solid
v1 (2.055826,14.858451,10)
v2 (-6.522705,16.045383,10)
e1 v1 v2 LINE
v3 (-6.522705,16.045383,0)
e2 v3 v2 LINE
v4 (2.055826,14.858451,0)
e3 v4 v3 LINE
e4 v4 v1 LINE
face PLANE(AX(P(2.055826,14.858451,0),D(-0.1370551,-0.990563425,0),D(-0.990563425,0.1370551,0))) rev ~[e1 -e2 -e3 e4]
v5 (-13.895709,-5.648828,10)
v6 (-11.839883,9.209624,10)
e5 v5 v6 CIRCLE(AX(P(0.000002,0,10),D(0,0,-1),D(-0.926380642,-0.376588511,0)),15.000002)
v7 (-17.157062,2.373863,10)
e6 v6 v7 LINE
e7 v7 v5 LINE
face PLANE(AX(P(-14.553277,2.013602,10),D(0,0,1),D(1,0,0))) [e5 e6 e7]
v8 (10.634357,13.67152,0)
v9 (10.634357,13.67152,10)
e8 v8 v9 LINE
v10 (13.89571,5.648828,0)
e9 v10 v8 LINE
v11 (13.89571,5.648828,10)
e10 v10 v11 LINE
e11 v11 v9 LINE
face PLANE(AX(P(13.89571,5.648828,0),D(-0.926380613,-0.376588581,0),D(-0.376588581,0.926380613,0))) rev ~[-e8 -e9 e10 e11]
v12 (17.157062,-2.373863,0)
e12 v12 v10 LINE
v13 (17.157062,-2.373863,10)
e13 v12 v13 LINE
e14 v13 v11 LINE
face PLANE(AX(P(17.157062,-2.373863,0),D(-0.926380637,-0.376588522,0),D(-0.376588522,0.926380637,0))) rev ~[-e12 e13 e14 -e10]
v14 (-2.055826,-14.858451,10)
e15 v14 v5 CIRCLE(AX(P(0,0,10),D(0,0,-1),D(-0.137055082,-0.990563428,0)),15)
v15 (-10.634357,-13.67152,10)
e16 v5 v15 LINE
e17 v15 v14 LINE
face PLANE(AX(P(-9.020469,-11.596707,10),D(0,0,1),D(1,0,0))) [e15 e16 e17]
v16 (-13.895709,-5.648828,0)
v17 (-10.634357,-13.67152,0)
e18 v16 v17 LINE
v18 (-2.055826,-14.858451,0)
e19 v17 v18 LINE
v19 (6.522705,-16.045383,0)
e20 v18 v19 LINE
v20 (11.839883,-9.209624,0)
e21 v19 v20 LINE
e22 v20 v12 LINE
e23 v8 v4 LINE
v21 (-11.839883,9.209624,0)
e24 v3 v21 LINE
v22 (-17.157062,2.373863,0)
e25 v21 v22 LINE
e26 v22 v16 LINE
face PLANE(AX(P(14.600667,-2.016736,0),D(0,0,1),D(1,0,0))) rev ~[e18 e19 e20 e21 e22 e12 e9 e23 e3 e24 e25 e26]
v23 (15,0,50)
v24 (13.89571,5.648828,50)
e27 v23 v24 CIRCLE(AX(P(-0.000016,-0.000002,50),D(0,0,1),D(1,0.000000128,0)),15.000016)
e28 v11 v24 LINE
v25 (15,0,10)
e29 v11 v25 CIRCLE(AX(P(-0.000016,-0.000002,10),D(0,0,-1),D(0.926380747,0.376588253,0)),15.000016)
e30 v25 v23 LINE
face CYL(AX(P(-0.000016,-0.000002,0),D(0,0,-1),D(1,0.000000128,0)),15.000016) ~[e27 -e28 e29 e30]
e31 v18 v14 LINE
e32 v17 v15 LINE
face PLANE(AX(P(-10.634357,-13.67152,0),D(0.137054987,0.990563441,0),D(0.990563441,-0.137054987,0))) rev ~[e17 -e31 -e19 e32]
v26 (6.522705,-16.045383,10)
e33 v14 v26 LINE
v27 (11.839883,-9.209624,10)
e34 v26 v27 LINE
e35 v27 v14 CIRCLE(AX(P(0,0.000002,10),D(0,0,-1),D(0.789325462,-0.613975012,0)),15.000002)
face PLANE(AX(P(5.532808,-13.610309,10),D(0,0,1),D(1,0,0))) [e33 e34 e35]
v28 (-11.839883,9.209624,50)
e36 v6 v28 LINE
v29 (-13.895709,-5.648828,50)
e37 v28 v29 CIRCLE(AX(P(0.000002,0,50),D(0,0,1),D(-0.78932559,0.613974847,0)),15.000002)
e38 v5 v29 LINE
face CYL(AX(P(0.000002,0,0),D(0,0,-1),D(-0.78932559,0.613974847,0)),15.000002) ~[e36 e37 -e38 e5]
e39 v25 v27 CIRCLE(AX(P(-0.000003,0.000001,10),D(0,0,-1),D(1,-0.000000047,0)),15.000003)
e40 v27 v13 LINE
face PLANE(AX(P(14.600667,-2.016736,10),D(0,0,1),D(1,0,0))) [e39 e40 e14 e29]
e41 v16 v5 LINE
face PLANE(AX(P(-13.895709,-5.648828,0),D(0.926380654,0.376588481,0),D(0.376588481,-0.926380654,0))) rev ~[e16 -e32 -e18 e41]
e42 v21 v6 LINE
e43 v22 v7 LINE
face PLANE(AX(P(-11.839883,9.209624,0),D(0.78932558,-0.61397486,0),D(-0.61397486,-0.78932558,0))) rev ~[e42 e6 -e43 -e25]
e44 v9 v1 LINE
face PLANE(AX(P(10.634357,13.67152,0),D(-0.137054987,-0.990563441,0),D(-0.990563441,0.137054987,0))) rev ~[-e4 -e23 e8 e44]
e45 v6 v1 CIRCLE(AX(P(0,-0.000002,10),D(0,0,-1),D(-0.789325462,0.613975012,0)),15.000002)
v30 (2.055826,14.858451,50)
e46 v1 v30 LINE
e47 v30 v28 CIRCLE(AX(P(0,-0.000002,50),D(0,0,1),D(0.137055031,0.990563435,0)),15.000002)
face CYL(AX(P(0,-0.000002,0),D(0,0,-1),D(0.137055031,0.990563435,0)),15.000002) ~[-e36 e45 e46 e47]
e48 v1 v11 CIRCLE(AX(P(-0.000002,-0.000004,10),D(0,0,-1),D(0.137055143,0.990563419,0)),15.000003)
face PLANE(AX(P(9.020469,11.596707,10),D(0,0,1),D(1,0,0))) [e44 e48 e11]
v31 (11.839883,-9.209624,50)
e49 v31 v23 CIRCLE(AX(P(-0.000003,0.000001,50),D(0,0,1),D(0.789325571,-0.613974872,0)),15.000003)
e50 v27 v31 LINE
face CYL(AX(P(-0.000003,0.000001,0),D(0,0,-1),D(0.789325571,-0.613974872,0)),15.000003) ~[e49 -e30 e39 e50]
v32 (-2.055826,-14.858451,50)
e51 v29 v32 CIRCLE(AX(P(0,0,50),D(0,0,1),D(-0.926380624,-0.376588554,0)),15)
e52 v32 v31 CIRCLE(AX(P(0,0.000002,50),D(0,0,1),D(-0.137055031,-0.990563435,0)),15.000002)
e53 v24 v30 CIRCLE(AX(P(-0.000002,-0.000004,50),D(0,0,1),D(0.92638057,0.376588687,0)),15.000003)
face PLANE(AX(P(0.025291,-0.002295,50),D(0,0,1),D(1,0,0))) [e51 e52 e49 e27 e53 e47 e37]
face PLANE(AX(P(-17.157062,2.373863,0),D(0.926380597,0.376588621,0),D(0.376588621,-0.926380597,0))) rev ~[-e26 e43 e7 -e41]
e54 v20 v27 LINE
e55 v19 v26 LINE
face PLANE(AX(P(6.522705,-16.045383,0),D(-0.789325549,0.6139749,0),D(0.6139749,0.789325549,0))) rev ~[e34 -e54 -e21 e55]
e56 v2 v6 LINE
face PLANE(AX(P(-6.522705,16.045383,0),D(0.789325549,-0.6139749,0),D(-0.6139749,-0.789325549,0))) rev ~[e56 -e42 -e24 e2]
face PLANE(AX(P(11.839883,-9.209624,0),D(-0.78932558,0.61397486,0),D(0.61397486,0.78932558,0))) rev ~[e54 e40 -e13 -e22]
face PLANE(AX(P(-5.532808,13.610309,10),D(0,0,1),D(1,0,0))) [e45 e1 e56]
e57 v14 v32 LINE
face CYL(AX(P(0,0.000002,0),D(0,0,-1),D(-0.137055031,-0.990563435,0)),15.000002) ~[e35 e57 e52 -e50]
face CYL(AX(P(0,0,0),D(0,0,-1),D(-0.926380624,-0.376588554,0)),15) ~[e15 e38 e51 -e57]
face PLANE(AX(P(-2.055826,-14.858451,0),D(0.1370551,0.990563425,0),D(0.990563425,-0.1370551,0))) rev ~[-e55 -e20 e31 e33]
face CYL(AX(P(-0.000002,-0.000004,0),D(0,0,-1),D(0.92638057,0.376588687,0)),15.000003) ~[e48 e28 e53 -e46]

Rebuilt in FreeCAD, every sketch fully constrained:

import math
import FreeCAD as App
import Part
import Sketcher

V = App.Vector
Q = App.Units.Quantity

doc = App.newDocument("Part")
body = doc.addObject("PartDesign::Body", "Body")

sketch1 = body.newObject("Sketcher::SketchObject", "Sketch")
sketch1.AttachmentSupport = (doc.getObject("XY_Plane"), [""])
sketch1.MapMode = "FlatFace"
sketch1.addGeometry(Part.ArcOfCircle(Part.Circle(V(-0.000003, 0.000001, 0), V(0, 0, 1), 15.000003), math.radians(-37.87747), math.radians(-0.000003)), False)
sketch1.addGeometry(Part.ArcOfCircle(Part.Circle(V(-0.000016, -0.000002, 0), V(0, 0, 1), 15.000016), math.radians(0.000007), math.radians(22.122511)), False)
sketch1.addGeometry(Part.ArcOfCircle(Part.Circle(V(-0.000002, -0.000004, 0), V(0, 0, 1), 15.000003), math.radians(22.122537), math.radians(82.122524)), False)
sketch1.addGeometry(Part.ArcOfCircle(Part.Circle(V(0, -0.000002, 0), V(0, 0, 1), 15.000002), math.radians(82.122531), math.radians(142.122519)), False)
sketch1.addGeometry(Part.ArcOfCircle(Part.Circle(V(0.000002, 0, 0), V(0, 0, 1), 15.000002), math.radians(142.122531), math.radians(202.122527)), False)
sketch1.addGeometry(Part.ArcOfCircle(Part.Circle(V(0, 0, 0), V(0, 0, 1), 15), math.radians(-157.877471), math.radians(-97.877472)), False)
sketch1.addGeometry(Part.ArcOfCircle(Part.Circle(V(0, 0.000002, 0), V(0, 0, 1), 15.000002), math.radians(-97.877469), math.radians(-37.877481)), False)
sketch1.addConstraint(Sketcher.Constraint("Tangent", 0, 2, 1, 1))
sketch1.addConstraint(Sketcher.Constraint("Tangent", 1, 2, 2, 1))
sketch1.addConstraint(Sketcher.Constraint("Tangent", 2, 2, 3, 1))
sketch1.addConstraint(Sketcher.Constraint("Tangent", 3, 2, 4, 1))
sketch1.addConstraint(Sketcher.Constraint("Tangent", 4, 2, 5, 1))
sketch1.addConstraint(Sketcher.Constraint("Tangent", 5, 2, 6, 1))
sketch1.addConstraint(Sketcher.Constraint("Tangent", 6, 2, 0, 1))
sketch1.addConstraint(Sketcher.Constraint("Coincident", 0, 3, -1, 1))
sketch1.addConstraint(Sketcher.Constraint("Coincident", 2, 3, -1, 1))
sketch1.addConstraint(Sketcher.Constraint("Coincident", 4, 3, -1, 1))
sketch1.addConstraint(Sketcher.Constraint("PointOnObject", 0, 2, -1))
sketch1.addConstraint(Sketcher.Constraint("Radius", 3, Q("15.000002 mm")))
sketch1.addConstraint(Sketcher.Constraint("DistanceX", -1, 1, 1, 2, Q("13.89571 mm")))
sketch1.addConstraint(Sketcher.Constraint("DistanceY", -1, 1, 2, 2, Q("14.858451 mm")))
sketch1.addConstraint(Sketcher.Constraint("DistanceX", 4, 2, -1, 1, Q("13.895709 mm")))
sketch1.addConstraint(Sketcher.Constraint("DistanceY", 5, 2, -1, 1, Q("14.858451 mm")))
sketch1.addConstraint(Sketcher.Constraint("DistanceX", 3, 2, 0, 3, Q("11.83988 mm")))
sketch1.addConstraint(Sketcher.Constraint("DistanceY", 6, 2, 3, 3, Q("9.209622 mm")))
pad1 = body.newObject("PartDesign::Pad", "Pad")
pad1.Profile = sketch1
pad1.Length = 50

sketch2 = body.newObject("Sketcher::SketchObject", "Sketch001")
sketch2.AttachmentSupport = (doc.getObject("XY_Plane"), [""])
sketch2.MapMode = "FlatFace"
sketch2.addGeometry(Part.ArcOfCircle(Part.Circle(V(-0.000016, -0.000002, 0), V(0, 0, 1), 15.000016), math.radians(0.000007), math.radians(22.122511)), False)
sketch2.addGeometry(Part.ArcOfCircle(Part.Circle(V(-0.000003, 0.000001, 0), V(0, 0, 1), 15.000003), math.radians(-37.87747), math.radians(-0.000003)), False)
sketch2.addGeometry(Part.LineSegment(V(11.839883, -9.209624, 0), V(17.157062, -2.373863, 0)), False)
sketch2.addGeometry(Part.LineSegment(V(17.157062, -2.373863, 0), V(13.89571, 5.648828, 0)), False)
sketch2.addGeometry(Part.ArcOfCircle(Part.Circle(V(-0.000002, -0.000004, 0), V(0, 0, 1), 15.000003), math.radians(22.122537), math.radians(82.122524)), False)
sketch2.addGeometry(Part.LineSegment(V(13.89571, 5.648828, 0), V(10.634357, 13.67152, 0)), False)
sketch2.addGeometry(Part.LineSegment(V(10.634357, 13.67152, 0), V(2.055826, 14.858451, 0)), False)
sketch2.addGeometry(Part.LineSegment(V(6.522705, -16.045383, 0), V(11.839883, -9.209624, 0)), False)
sketch2.addGeometry(Part.ArcOfCircle(Part.Circle(V(0, 0.000002, 0), V(0, 0, 1), 15.000002), math.radians(-97.877469), math.radians(-37.877481)), False)
sketch2.addGeometry(Part.LineSegment(V(-2.055826, -14.858451, 0), V(6.522705, -16.045383, 0)), False)
sketch2.addGeometry(Part.ArcOfCircle(Part.Circle(V(0, -0.000002, 0), V(0, 0, 1), 15.000002), math.radians(82.122531), math.radians(142.122519)), False)
sketch2.addGeometry(Part.LineSegment(V(2.055826, 14.858451, 0), V(-6.522705, 16.045383, 0)), False)
sketch2.addGeometry(Part.LineSegment(V(-6.522705, 16.045383, 0), V(-11.839883, 9.209624, 0)), False)
sketch2.addGeometry(Part.LineSegment(V(-10.634357, -13.67152, 0), V(-2.055826, -14.858451, 0)), False)
sketch2.addGeometry(Part.ArcOfCircle(Part.Circle(V(0, 0, 0), V(0, 0, 1), 15), math.radians(-157.877471), math.radians(-97.877472)), False)
sketch2.addGeometry(Part.LineSegment(V(-13.895709, -5.648828, 0), V(-10.634357, -13.67152, 0)), False)
sketch2.addGeometry(Part.ArcOfCircle(Part.Circle(V(0.000002, 0, 0), V(0, 0, 1), 15.000002), math.radians(142.122531), math.radians(202.122527)), False)
sketch2.addGeometry(Part.LineSegment(V(-11.839883, 9.209624, 0), V(-17.157062, 2.373863, 0)), False)
sketch2.addGeometry(Part.LineSegment(V(-17.157062, 2.373863, 0), V(-13.895709, -5.648828, 0)), False)
sketch2.addConstraint(Sketcher.Constraint("Tangent", 0, 1, 1, 2))
sketch2.addConstraint(Sketcher.Constraint("Tangent", 1, 1, 2, 1))
sketch2.addConstraint(Sketcher.Constraint("Coincident", 2, 2, 3, 1))
sketch2.addConstraint(Sketcher.Constraint("Tangent", 3, 2, 0, 2))
sketch2.addConstraint(Sketcher.Constraint("Tangent", 4, 1, 5, 1))
sketch2.addConstraint(Sketcher.Constraint("Coincident", 5, 2, 6, 1))
sketch2.addConstraint(Sketcher.Constraint("Tangent", 6, 2, 4, 2))
sketch2.addConstraint(Sketcher.Constraint("Tangent", 7, 2, 8, 2))
sketch2.addConstraint(Sketcher.Constraint("Tangent", 8, 1, 9, 1))
sketch2.addConstraint(Sketcher.Constraint("Coincident", 9, 2, 7, 1))
sketch2.addConstraint(Sketcher.Constraint("Tangent", 10, 1, 11, 1))
sketch2.addConstraint(Sketcher.Constraint("Coincident", 11, 2, 12, 1))
sketch2.addConstraint(Sketcher.Constraint("Tangent", 12, 2, 10, 2))
sketch2.addConstraint(Sketcher.Constraint("Tangent", 13, 2, 14, 2))
sketch2.addConstraint(Sketcher.Constraint("Tangent", 14, 1, 15, 1))
sketch2.addConstraint(Sketcher.Constraint("Coincident", 15, 2, 13, 1))
sketch2.addConstraint(Sketcher.Constraint("Tangent", 16, 1, 17, 1))
sketch2.addConstraint(Sketcher.Constraint("Coincident", 17, 2, 18, 1))
sketch2.addConstraint(Sketcher.Constraint("Tangent", 18, 2, 16, 2))
sketch2.addConstraint(Sketcher.Constraint("Coincident", 1, 3, -1, 1))
sketch2.addConstraint(Sketcher.Constraint("Coincident", 4, 3, -1, 1))
sketch2.addConstraint(Sketcher.Constraint("Coincident", 8, 3, -1, 1))
sketch2.addConstraint(Sketcher.Constraint("Coincident", 10, 3, -1, 1))
sketch2.addConstraint(Sketcher.Constraint("Coincident", 14, 3, -1, 1))
sketch2.addConstraint(Sketcher.Constraint("Coincident", 16, 3, -1, 1))
sketch2.addConstraint(Sketcher.Constraint("Coincident", 4, 1, 3, 2))
sketch2.addConstraint(Sketcher.Constraint("Coincident", 7, 2, 1, 1))
sketch2.addConstraint(Sketcher.Constraint("Coincident", 10, 1, 6, 2))
sketch2.addConstraint(Sketcher.Constraint("Coincident", 13, 2, 8, 1))
sketch2.addConstraint(Sketcher.Constraint("Coincident", 16, 1, 12, 2))
sketch2.addConstraint(Sketcher.Constraint("Coincident", 18, 2, 14, 1))
sketch2.addConstraint(Sketcher.Constraint("Symmetric", 9, 2, 11, 2, -1, 1))
sketch2.addConstraint(Sketcher.Constraint("PointOnObject", 0, 1, -1))
sketch2.addConstraint(Sketcher.Constraint("Parallel", 5, 15))
sketch2.addConstraint(Sketcher.Constraint("Equal", 3, 5))
sketch2.addConstraint(Sketcher.Constraint("Equal", 6, 7))
sketch2.addConstraint(Sketcher.Constraint("Radius", 8, Q("15.000002 mm")))
sketch2.addConstraint(Sketcher.Constraint("DistanceX", -1, 1, 2, 2, Q("17.157062 mm")))
pad2 = body.newObject("PartDesign::Pad", "Pad001")
pad2.Profile = sketch2
pad2.Length = 10

doc.recompute()
